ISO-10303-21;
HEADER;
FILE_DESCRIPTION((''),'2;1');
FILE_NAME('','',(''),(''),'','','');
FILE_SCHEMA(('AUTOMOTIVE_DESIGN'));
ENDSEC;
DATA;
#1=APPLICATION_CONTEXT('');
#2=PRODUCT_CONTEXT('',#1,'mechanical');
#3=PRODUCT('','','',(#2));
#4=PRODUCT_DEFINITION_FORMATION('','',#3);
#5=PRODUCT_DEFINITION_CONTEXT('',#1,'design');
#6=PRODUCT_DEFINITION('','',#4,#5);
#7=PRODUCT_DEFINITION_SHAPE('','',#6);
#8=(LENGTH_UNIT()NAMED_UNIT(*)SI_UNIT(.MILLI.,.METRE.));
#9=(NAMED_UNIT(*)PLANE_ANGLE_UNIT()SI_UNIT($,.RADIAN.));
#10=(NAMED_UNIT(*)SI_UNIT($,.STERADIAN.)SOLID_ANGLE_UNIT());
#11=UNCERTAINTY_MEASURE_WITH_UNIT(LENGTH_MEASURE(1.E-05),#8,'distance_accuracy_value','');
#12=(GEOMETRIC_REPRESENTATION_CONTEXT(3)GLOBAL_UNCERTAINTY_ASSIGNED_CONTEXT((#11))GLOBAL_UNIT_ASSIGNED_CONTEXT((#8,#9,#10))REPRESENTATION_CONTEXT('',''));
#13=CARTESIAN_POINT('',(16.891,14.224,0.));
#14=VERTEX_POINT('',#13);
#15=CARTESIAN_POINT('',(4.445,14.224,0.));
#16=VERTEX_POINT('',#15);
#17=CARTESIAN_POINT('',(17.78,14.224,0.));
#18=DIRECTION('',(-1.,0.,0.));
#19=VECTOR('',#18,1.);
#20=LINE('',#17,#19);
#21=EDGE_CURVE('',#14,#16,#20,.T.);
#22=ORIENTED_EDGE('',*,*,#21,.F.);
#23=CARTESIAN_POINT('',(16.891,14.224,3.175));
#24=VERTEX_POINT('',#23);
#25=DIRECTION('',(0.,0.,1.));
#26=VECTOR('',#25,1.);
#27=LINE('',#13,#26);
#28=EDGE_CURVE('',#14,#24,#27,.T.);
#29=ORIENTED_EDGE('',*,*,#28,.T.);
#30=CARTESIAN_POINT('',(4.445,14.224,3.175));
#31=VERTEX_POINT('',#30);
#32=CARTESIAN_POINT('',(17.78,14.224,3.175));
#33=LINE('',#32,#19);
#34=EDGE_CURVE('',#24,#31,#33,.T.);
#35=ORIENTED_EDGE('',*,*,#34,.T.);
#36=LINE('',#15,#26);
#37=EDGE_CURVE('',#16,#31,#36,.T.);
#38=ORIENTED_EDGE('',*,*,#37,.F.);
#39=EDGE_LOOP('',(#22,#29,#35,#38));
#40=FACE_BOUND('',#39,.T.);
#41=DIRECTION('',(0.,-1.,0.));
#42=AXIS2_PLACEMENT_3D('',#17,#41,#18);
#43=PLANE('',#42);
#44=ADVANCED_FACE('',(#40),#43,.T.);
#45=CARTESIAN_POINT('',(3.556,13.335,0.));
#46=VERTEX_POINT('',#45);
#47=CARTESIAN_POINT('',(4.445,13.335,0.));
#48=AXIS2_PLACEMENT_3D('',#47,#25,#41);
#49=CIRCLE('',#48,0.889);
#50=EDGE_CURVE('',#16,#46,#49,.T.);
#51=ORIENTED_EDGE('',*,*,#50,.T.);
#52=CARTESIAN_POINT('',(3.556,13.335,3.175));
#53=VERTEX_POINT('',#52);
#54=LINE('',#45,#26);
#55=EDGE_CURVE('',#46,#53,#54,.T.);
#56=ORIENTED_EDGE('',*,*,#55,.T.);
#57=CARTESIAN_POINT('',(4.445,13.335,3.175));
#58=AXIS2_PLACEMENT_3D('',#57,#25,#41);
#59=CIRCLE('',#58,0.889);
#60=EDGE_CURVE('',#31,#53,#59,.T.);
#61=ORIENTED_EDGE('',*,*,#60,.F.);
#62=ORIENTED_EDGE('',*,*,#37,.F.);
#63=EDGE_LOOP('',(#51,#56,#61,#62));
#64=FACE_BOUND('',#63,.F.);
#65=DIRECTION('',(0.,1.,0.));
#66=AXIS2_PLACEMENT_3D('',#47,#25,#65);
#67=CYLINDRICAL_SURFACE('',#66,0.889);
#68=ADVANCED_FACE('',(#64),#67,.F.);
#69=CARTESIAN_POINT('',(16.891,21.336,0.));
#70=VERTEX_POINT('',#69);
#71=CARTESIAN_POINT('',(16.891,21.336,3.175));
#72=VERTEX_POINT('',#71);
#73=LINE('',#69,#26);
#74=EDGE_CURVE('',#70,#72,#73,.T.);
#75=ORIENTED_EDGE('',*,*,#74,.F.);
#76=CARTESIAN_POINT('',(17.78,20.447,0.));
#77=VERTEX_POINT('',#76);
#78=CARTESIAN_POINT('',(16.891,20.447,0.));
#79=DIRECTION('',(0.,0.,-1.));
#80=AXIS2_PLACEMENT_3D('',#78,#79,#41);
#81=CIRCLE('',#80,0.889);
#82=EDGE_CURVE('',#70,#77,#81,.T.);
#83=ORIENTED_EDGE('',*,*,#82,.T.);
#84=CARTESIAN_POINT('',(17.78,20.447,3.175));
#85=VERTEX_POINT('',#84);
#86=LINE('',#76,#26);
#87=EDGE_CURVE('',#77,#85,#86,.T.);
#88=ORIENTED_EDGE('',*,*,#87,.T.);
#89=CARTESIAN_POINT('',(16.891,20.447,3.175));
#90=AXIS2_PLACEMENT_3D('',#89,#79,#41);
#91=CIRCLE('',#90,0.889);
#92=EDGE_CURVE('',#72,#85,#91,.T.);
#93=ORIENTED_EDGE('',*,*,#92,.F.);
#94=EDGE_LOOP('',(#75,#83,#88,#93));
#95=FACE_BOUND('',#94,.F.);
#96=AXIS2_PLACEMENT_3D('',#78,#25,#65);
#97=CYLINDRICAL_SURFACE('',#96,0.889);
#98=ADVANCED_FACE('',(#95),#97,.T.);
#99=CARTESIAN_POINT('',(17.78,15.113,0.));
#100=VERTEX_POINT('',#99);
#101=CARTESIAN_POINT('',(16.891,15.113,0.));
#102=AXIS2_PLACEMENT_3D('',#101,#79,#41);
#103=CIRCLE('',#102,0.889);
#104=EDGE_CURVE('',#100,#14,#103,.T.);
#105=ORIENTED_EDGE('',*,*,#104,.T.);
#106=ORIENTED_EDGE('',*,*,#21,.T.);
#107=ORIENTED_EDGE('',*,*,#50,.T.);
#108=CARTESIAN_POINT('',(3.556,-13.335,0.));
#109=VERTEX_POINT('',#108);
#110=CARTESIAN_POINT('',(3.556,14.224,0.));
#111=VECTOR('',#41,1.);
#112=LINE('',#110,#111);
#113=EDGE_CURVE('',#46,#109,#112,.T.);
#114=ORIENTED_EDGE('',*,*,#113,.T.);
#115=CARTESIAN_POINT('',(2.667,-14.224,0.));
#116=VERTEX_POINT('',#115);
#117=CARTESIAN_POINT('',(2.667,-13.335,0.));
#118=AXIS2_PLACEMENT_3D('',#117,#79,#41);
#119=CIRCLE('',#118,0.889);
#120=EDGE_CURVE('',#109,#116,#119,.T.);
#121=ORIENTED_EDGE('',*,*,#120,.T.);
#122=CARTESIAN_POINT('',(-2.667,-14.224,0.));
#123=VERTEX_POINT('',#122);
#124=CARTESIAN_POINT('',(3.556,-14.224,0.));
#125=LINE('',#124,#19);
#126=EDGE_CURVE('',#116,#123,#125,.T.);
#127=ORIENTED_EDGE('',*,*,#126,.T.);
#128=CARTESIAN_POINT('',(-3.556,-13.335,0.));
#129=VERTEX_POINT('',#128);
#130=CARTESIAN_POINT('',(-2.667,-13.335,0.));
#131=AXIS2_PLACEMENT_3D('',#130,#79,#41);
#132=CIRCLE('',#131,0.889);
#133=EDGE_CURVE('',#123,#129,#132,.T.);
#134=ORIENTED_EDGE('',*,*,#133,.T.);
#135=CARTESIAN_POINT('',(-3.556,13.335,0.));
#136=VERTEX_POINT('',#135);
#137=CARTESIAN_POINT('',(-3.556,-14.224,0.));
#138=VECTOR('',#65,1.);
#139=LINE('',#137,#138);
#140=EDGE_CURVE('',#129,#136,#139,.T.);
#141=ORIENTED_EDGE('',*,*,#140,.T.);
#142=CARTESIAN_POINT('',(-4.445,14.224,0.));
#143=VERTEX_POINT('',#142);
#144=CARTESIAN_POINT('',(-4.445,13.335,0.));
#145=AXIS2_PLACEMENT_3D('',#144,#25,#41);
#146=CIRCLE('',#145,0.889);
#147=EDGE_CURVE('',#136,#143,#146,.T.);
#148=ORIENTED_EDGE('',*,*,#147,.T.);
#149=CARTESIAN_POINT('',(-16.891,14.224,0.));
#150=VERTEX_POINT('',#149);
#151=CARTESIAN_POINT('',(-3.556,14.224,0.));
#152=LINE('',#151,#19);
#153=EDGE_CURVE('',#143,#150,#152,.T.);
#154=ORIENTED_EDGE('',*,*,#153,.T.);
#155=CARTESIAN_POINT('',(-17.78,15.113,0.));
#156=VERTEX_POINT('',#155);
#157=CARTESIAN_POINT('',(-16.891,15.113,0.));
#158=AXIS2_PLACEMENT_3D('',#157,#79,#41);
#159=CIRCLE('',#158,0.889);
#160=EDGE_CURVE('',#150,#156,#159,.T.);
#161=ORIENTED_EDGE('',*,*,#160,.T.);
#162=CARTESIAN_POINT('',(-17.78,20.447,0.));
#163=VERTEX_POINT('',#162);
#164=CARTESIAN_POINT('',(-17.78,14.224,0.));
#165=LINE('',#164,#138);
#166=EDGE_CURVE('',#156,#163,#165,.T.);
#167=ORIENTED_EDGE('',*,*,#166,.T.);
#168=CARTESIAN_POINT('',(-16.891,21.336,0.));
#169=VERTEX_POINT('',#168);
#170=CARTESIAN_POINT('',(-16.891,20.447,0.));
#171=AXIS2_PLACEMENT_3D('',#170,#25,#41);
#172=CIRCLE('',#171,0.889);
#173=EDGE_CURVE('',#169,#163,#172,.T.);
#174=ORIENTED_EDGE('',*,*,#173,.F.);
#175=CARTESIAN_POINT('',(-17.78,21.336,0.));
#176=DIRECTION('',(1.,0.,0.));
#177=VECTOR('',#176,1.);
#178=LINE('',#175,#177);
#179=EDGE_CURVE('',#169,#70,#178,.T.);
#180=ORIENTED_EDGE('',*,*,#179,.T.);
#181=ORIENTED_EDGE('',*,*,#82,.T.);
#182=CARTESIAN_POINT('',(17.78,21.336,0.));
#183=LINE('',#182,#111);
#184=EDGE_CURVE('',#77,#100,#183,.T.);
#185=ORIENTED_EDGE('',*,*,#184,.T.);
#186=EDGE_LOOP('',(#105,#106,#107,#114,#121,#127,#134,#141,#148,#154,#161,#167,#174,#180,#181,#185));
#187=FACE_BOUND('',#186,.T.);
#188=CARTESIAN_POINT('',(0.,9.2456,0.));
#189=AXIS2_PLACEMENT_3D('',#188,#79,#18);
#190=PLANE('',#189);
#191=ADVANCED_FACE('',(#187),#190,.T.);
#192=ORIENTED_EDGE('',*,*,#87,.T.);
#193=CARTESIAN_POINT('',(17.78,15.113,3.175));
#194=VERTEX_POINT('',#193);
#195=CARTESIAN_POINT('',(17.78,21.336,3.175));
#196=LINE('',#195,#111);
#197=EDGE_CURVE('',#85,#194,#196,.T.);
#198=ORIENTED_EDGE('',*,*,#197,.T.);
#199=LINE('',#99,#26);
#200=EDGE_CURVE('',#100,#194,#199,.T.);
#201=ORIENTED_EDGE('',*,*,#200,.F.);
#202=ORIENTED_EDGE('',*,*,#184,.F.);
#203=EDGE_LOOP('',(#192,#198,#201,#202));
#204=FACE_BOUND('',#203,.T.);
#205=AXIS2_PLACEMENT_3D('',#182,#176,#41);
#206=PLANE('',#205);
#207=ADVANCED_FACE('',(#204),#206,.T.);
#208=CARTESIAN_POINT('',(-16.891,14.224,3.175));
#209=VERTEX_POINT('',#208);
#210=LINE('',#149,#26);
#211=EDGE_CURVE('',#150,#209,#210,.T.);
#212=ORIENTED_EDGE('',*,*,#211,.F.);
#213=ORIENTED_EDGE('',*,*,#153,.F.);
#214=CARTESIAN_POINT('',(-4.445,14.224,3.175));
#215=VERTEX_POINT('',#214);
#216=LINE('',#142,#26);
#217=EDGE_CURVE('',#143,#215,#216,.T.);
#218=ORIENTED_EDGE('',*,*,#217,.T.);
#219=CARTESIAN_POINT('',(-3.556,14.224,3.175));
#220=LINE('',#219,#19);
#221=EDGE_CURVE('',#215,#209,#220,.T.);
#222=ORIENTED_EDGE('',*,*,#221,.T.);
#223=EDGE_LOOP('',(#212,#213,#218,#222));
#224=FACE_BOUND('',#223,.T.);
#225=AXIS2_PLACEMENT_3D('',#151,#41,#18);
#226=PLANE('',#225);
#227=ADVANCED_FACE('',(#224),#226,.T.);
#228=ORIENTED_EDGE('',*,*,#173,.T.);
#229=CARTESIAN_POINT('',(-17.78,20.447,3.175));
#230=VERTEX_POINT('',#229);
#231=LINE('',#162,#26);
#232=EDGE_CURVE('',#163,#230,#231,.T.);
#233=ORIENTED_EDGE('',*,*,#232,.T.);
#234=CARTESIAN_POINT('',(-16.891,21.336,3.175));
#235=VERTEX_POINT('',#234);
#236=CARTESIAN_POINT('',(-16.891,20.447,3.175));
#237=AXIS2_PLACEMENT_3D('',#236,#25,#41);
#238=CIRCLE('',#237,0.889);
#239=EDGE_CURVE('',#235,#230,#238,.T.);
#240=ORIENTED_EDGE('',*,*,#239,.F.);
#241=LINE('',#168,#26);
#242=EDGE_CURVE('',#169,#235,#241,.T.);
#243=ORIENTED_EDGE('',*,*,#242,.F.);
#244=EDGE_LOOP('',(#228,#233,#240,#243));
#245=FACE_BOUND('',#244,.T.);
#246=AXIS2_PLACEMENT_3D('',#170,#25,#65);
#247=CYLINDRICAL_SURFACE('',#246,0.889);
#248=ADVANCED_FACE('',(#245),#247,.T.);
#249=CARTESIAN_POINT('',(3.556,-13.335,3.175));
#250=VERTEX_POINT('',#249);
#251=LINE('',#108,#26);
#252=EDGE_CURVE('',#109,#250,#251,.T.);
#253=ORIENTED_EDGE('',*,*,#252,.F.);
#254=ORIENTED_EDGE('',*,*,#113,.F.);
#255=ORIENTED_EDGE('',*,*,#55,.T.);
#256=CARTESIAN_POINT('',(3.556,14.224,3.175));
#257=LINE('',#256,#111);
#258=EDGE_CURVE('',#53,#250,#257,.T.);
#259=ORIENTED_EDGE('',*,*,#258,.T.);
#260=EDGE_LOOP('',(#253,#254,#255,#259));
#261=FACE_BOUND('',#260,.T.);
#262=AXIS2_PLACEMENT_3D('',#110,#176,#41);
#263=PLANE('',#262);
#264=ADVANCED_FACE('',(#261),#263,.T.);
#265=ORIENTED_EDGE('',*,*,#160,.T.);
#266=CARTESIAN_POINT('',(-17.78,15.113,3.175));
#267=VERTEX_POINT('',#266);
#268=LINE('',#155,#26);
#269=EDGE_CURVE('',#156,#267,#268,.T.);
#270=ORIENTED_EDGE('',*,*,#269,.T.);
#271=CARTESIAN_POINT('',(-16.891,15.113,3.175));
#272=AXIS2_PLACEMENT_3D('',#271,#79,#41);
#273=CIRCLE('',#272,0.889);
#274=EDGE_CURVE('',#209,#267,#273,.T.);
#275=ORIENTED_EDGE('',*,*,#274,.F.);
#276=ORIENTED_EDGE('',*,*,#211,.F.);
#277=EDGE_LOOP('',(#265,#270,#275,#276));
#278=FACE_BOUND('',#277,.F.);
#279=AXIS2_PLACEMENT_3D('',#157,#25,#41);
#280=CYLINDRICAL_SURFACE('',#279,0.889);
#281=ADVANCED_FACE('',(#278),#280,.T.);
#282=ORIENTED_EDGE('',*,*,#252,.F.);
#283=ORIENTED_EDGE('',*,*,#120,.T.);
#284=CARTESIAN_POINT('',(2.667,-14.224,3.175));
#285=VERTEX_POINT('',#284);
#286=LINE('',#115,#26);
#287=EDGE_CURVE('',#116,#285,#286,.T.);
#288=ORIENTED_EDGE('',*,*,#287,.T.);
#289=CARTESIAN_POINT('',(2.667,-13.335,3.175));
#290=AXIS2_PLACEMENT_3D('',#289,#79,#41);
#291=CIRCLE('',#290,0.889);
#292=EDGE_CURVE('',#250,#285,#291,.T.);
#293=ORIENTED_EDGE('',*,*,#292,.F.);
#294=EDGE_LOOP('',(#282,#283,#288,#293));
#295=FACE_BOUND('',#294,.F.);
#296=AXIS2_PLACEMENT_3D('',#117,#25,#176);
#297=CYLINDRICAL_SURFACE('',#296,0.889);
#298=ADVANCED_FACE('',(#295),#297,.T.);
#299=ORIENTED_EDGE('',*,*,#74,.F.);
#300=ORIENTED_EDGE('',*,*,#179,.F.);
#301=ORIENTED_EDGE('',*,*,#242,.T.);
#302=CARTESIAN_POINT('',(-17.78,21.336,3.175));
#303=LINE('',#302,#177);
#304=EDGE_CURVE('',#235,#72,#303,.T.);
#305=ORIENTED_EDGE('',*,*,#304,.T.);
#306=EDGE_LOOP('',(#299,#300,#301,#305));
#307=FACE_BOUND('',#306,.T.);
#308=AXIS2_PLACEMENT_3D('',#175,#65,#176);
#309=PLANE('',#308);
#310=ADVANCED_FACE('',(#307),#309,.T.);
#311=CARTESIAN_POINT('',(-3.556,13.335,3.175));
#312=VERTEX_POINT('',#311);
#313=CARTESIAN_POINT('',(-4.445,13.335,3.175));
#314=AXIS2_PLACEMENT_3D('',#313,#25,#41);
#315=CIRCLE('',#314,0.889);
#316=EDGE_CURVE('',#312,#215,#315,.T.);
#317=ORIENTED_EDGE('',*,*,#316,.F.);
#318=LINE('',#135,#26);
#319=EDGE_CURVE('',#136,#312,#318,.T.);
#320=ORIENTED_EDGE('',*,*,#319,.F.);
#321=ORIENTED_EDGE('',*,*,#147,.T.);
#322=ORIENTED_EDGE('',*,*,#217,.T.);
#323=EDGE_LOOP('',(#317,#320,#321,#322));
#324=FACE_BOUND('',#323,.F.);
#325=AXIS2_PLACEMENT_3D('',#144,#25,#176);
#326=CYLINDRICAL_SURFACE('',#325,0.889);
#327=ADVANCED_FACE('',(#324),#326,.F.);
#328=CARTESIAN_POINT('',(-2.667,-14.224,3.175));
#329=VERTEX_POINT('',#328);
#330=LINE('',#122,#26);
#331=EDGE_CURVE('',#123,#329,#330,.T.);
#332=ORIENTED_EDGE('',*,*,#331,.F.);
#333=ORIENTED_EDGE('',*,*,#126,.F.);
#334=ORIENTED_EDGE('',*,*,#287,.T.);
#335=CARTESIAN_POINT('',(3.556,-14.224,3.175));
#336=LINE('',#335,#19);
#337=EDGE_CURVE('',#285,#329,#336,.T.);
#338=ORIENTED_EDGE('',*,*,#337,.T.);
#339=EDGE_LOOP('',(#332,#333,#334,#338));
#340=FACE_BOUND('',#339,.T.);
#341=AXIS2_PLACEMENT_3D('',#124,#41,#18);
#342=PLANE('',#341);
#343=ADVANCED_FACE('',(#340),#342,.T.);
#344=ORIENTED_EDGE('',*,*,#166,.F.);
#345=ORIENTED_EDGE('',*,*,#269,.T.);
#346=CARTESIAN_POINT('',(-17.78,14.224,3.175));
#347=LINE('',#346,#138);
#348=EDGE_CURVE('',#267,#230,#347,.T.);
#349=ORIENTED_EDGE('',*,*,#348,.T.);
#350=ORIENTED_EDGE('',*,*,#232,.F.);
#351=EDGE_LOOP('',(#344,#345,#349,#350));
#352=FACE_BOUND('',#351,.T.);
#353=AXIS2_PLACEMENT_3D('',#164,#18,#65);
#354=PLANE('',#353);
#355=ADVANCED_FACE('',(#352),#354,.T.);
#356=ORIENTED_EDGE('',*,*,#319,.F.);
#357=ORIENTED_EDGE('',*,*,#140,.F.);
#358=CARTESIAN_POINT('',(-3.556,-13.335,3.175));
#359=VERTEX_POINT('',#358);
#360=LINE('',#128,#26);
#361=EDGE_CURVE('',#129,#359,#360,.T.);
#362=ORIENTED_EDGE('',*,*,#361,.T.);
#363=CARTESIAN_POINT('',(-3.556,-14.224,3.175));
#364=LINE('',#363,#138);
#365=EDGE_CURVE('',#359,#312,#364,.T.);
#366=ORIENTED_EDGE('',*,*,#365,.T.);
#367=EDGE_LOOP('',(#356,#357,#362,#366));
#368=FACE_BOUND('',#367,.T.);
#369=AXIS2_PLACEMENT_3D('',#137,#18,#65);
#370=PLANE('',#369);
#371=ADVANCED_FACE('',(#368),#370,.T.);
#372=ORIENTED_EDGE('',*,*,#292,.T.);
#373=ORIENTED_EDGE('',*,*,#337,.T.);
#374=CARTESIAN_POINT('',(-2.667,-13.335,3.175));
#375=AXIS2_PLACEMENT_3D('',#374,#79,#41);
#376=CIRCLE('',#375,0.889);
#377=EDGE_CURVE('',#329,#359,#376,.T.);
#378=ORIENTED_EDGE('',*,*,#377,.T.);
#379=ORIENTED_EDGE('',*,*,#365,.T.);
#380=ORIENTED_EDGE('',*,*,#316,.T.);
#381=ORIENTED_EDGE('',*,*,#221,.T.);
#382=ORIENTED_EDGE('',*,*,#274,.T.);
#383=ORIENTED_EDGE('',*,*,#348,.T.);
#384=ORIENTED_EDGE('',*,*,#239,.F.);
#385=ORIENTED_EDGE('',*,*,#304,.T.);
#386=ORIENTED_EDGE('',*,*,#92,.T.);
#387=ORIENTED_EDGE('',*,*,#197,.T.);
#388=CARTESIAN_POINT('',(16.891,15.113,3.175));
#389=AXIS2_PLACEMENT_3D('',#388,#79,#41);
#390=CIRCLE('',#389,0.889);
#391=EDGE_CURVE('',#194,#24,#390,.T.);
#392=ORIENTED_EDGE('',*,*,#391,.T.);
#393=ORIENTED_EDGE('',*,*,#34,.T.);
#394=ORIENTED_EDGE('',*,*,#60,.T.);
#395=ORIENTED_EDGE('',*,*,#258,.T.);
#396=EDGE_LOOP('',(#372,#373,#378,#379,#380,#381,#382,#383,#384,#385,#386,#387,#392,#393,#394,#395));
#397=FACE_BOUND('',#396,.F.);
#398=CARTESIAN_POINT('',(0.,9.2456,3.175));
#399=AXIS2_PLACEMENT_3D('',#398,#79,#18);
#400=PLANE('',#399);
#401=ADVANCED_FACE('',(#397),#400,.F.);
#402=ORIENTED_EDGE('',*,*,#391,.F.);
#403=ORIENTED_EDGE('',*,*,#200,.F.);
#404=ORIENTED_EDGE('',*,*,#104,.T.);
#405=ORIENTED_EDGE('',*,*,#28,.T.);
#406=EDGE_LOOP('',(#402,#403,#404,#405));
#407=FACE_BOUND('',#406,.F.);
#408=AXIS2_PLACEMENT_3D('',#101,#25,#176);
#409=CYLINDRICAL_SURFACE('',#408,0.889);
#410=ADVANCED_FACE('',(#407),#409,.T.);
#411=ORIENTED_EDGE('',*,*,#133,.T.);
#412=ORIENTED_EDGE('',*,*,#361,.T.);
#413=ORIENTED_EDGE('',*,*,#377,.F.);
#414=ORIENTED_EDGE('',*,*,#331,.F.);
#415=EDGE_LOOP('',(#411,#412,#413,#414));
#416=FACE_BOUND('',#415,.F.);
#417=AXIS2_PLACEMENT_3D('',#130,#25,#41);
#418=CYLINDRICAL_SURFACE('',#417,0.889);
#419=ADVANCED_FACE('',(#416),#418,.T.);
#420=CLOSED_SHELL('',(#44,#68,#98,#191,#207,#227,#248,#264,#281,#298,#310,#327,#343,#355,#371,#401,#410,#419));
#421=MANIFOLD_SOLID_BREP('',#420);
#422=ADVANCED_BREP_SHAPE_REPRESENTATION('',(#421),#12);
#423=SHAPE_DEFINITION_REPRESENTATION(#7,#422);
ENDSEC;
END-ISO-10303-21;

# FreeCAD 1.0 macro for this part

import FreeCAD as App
import Part
import Sketcher

V = App.Vector
Q = App.Units.Quantity


def edges_at(feature, points):
    """Names of the edges that pass closest to the given points."""
    edges = feature.Shape.Edges
    near = lambda p: min(range(len(edges)), key=lambda i: edges[i].distToShape(Part.Vertex(*p))[0])
    return sorted({f"Edge{near(p) + 1}" for p in points})

doc = App.newDocument("Part")
params = doc.addObject("Spreadsheet::Sheet", "Params")
for row, (alias, value) in enumerate([
    ("sketch1_width", "1.4 in"),
    ("sketch1_width2", "0.56 in"),
    ("sketch1_height", "1.12 in"),
    ("pad1_length", "0.125 in"),
    ("fillet_radius", "0.035 in"),
], start=1):
    params.set(f"A{row}", alias)
    params.set(f"B{row}", "=" + value)
    params.setAlias(f"B{row}", alias)

body = doc.addObject("PartDesign::Body", "Body")

# Sketch on XY plane
sketch1 = doc.addObject("Sketcher::SketchObject", "Sketch")
body.addObject(sketch1)
sketch1.AttachmentSupport = (doc.XY_Plane, [""])
sketch1.MapMode = "FlatFace"
sketch1.addGeometry(Part.LineSegment(V(18, 21, 0), V(-18, 21, 0)), False)
sketch1.addGeometry(Part.LineSegment(V(-18, 21, 0), V(-18, 14, 0)), False)
sketch1.addGeometry(Part.LineSegment(V(-18, 14, 0), V(-4, 14, 0)), False)
sketch1.addGeometry(Part.LineSegment(V(-4, 14, 0), V(-4, -14, 0)), False)
sketch1.addGeometry(Part.LineSegment(V(-4, -14, 0), V(4, -14, 0)), False)
sketch1.addGeometry(Part.LineSegment(V(4, -14, 0), V(4, 14, 0)), False)
sketch1.addGeometry(Part.LineSegment(V(4, 14, 0), V(18, 14, 0)), False)
sketch1.addGeometry(Part.LineSegment(V(18, 14, 0), V(18, 21, 0)), False)
sketch1.addConstraint(Sketcher.Constraint("Coincident", 0, 2, 1, 1))
sketch1.addConstraint(Sketcher.Constraint("Coincident", 1, 2, 2, 1))
sketch1.addConstraint(Sketcher.Constraint("Coincident", 2, 2, 3, 1))
sketch1.addConstraint(Sketcher.Constraint("Coincident", 3, 2, 4, 1))
sketch1.addConstraint(Sketcher.Constraint("Coincident", 4, 2, 5, 1))
sketch1.addConstraint(Sketcher.Constraint("Coincident", 5, 2, 6, 1))
sketch1.addConstraint(Sketcher.Constraint("Coincident", 6, 2, 7, 1))
sketch1.addConstraint(Sketcher.Constraint("Coincident", 7, 2, 0, 1))
sketch1.addConstraint(Sketcher.Constraint("Horizontal", 0))
sketch1.addConstraint(Sketcher.Constraint("Vertical", 1))
sketch1.addConstraint(Sketcher.Constraint("Horizontal", 2))
sketch1.addConstraint(Sketcher.Constraint("Vertical", 3))
sketch1.addConstraint(Sketcher.Constraint("Horizontal", 4))
sketch1.addConstraint(Sketcher.Constraint("Vertical", 5))
sketch1.addConstraint(Sketcher.Constraint("Horizontal", 6))
sketch1.addConstraint(Sketcher.Constraint("Vertical", 7))
sketch1.addConstraint(Sketcher.Constraint("Symmetric", 2, 2, 4, 2, -1, 1))
sketch1.addConstraint(Sketcher.Constraint("Symmetric", 1, 2, 6, 2, -2))
sketch1.addConstraint(Sketcher.Constraint("Equal", 4, 1))
sketch1.addConstraint(Sketcher.Constraint("DistanceX", 0, 2, 0, 1, Q("1.4 in")))
sketch1.addConstraint(Sketcher.Constraint("DistanceX", 2, 1, 2, 2, Q("0.56 in")))
sketch1.addConstraint(Sketcher.Constraint("DistanceY", 3, 2, 3, 1, Q("1.12 in")))
sketch1.setExpression("Constraints[19]", "Params.sketch1_width")
sketch1.setExpression("Constraints[20]", "Params.sketch1_width2")
sketch1.setExpression("Constraints[21]", "Params.sketch1_height")
pad1 = doc.addObject("PartDesign::Pad", "Pad")
body.addObject(pad1)
pad1.Profile = sketch1
pad1.setExpression("Length", "Params.pad1_length")
doc.recompute()

fillet = doc.addObject("PartDesign::Fillet", "Fillet")
body.addObject(fillet)
fillet.Base = (pad1, edges_at(pad1, [
    (-17.78, 21.336, 1.587),
    (-17.78, 14.224, 1.587),
    (-3.556, 14.224, 1.587),
    (17.78, 14.224, 1.587),
    (-3.556, -14.224, 1.587),
    (3.556, -14.224, 1.587),
    (17.78, 21.336, 1.587),
    (3.556, 14.224, 1.587),
]))
fillet.setExpression("Radius", "Params.fillet_radius")

doc.recompute()
